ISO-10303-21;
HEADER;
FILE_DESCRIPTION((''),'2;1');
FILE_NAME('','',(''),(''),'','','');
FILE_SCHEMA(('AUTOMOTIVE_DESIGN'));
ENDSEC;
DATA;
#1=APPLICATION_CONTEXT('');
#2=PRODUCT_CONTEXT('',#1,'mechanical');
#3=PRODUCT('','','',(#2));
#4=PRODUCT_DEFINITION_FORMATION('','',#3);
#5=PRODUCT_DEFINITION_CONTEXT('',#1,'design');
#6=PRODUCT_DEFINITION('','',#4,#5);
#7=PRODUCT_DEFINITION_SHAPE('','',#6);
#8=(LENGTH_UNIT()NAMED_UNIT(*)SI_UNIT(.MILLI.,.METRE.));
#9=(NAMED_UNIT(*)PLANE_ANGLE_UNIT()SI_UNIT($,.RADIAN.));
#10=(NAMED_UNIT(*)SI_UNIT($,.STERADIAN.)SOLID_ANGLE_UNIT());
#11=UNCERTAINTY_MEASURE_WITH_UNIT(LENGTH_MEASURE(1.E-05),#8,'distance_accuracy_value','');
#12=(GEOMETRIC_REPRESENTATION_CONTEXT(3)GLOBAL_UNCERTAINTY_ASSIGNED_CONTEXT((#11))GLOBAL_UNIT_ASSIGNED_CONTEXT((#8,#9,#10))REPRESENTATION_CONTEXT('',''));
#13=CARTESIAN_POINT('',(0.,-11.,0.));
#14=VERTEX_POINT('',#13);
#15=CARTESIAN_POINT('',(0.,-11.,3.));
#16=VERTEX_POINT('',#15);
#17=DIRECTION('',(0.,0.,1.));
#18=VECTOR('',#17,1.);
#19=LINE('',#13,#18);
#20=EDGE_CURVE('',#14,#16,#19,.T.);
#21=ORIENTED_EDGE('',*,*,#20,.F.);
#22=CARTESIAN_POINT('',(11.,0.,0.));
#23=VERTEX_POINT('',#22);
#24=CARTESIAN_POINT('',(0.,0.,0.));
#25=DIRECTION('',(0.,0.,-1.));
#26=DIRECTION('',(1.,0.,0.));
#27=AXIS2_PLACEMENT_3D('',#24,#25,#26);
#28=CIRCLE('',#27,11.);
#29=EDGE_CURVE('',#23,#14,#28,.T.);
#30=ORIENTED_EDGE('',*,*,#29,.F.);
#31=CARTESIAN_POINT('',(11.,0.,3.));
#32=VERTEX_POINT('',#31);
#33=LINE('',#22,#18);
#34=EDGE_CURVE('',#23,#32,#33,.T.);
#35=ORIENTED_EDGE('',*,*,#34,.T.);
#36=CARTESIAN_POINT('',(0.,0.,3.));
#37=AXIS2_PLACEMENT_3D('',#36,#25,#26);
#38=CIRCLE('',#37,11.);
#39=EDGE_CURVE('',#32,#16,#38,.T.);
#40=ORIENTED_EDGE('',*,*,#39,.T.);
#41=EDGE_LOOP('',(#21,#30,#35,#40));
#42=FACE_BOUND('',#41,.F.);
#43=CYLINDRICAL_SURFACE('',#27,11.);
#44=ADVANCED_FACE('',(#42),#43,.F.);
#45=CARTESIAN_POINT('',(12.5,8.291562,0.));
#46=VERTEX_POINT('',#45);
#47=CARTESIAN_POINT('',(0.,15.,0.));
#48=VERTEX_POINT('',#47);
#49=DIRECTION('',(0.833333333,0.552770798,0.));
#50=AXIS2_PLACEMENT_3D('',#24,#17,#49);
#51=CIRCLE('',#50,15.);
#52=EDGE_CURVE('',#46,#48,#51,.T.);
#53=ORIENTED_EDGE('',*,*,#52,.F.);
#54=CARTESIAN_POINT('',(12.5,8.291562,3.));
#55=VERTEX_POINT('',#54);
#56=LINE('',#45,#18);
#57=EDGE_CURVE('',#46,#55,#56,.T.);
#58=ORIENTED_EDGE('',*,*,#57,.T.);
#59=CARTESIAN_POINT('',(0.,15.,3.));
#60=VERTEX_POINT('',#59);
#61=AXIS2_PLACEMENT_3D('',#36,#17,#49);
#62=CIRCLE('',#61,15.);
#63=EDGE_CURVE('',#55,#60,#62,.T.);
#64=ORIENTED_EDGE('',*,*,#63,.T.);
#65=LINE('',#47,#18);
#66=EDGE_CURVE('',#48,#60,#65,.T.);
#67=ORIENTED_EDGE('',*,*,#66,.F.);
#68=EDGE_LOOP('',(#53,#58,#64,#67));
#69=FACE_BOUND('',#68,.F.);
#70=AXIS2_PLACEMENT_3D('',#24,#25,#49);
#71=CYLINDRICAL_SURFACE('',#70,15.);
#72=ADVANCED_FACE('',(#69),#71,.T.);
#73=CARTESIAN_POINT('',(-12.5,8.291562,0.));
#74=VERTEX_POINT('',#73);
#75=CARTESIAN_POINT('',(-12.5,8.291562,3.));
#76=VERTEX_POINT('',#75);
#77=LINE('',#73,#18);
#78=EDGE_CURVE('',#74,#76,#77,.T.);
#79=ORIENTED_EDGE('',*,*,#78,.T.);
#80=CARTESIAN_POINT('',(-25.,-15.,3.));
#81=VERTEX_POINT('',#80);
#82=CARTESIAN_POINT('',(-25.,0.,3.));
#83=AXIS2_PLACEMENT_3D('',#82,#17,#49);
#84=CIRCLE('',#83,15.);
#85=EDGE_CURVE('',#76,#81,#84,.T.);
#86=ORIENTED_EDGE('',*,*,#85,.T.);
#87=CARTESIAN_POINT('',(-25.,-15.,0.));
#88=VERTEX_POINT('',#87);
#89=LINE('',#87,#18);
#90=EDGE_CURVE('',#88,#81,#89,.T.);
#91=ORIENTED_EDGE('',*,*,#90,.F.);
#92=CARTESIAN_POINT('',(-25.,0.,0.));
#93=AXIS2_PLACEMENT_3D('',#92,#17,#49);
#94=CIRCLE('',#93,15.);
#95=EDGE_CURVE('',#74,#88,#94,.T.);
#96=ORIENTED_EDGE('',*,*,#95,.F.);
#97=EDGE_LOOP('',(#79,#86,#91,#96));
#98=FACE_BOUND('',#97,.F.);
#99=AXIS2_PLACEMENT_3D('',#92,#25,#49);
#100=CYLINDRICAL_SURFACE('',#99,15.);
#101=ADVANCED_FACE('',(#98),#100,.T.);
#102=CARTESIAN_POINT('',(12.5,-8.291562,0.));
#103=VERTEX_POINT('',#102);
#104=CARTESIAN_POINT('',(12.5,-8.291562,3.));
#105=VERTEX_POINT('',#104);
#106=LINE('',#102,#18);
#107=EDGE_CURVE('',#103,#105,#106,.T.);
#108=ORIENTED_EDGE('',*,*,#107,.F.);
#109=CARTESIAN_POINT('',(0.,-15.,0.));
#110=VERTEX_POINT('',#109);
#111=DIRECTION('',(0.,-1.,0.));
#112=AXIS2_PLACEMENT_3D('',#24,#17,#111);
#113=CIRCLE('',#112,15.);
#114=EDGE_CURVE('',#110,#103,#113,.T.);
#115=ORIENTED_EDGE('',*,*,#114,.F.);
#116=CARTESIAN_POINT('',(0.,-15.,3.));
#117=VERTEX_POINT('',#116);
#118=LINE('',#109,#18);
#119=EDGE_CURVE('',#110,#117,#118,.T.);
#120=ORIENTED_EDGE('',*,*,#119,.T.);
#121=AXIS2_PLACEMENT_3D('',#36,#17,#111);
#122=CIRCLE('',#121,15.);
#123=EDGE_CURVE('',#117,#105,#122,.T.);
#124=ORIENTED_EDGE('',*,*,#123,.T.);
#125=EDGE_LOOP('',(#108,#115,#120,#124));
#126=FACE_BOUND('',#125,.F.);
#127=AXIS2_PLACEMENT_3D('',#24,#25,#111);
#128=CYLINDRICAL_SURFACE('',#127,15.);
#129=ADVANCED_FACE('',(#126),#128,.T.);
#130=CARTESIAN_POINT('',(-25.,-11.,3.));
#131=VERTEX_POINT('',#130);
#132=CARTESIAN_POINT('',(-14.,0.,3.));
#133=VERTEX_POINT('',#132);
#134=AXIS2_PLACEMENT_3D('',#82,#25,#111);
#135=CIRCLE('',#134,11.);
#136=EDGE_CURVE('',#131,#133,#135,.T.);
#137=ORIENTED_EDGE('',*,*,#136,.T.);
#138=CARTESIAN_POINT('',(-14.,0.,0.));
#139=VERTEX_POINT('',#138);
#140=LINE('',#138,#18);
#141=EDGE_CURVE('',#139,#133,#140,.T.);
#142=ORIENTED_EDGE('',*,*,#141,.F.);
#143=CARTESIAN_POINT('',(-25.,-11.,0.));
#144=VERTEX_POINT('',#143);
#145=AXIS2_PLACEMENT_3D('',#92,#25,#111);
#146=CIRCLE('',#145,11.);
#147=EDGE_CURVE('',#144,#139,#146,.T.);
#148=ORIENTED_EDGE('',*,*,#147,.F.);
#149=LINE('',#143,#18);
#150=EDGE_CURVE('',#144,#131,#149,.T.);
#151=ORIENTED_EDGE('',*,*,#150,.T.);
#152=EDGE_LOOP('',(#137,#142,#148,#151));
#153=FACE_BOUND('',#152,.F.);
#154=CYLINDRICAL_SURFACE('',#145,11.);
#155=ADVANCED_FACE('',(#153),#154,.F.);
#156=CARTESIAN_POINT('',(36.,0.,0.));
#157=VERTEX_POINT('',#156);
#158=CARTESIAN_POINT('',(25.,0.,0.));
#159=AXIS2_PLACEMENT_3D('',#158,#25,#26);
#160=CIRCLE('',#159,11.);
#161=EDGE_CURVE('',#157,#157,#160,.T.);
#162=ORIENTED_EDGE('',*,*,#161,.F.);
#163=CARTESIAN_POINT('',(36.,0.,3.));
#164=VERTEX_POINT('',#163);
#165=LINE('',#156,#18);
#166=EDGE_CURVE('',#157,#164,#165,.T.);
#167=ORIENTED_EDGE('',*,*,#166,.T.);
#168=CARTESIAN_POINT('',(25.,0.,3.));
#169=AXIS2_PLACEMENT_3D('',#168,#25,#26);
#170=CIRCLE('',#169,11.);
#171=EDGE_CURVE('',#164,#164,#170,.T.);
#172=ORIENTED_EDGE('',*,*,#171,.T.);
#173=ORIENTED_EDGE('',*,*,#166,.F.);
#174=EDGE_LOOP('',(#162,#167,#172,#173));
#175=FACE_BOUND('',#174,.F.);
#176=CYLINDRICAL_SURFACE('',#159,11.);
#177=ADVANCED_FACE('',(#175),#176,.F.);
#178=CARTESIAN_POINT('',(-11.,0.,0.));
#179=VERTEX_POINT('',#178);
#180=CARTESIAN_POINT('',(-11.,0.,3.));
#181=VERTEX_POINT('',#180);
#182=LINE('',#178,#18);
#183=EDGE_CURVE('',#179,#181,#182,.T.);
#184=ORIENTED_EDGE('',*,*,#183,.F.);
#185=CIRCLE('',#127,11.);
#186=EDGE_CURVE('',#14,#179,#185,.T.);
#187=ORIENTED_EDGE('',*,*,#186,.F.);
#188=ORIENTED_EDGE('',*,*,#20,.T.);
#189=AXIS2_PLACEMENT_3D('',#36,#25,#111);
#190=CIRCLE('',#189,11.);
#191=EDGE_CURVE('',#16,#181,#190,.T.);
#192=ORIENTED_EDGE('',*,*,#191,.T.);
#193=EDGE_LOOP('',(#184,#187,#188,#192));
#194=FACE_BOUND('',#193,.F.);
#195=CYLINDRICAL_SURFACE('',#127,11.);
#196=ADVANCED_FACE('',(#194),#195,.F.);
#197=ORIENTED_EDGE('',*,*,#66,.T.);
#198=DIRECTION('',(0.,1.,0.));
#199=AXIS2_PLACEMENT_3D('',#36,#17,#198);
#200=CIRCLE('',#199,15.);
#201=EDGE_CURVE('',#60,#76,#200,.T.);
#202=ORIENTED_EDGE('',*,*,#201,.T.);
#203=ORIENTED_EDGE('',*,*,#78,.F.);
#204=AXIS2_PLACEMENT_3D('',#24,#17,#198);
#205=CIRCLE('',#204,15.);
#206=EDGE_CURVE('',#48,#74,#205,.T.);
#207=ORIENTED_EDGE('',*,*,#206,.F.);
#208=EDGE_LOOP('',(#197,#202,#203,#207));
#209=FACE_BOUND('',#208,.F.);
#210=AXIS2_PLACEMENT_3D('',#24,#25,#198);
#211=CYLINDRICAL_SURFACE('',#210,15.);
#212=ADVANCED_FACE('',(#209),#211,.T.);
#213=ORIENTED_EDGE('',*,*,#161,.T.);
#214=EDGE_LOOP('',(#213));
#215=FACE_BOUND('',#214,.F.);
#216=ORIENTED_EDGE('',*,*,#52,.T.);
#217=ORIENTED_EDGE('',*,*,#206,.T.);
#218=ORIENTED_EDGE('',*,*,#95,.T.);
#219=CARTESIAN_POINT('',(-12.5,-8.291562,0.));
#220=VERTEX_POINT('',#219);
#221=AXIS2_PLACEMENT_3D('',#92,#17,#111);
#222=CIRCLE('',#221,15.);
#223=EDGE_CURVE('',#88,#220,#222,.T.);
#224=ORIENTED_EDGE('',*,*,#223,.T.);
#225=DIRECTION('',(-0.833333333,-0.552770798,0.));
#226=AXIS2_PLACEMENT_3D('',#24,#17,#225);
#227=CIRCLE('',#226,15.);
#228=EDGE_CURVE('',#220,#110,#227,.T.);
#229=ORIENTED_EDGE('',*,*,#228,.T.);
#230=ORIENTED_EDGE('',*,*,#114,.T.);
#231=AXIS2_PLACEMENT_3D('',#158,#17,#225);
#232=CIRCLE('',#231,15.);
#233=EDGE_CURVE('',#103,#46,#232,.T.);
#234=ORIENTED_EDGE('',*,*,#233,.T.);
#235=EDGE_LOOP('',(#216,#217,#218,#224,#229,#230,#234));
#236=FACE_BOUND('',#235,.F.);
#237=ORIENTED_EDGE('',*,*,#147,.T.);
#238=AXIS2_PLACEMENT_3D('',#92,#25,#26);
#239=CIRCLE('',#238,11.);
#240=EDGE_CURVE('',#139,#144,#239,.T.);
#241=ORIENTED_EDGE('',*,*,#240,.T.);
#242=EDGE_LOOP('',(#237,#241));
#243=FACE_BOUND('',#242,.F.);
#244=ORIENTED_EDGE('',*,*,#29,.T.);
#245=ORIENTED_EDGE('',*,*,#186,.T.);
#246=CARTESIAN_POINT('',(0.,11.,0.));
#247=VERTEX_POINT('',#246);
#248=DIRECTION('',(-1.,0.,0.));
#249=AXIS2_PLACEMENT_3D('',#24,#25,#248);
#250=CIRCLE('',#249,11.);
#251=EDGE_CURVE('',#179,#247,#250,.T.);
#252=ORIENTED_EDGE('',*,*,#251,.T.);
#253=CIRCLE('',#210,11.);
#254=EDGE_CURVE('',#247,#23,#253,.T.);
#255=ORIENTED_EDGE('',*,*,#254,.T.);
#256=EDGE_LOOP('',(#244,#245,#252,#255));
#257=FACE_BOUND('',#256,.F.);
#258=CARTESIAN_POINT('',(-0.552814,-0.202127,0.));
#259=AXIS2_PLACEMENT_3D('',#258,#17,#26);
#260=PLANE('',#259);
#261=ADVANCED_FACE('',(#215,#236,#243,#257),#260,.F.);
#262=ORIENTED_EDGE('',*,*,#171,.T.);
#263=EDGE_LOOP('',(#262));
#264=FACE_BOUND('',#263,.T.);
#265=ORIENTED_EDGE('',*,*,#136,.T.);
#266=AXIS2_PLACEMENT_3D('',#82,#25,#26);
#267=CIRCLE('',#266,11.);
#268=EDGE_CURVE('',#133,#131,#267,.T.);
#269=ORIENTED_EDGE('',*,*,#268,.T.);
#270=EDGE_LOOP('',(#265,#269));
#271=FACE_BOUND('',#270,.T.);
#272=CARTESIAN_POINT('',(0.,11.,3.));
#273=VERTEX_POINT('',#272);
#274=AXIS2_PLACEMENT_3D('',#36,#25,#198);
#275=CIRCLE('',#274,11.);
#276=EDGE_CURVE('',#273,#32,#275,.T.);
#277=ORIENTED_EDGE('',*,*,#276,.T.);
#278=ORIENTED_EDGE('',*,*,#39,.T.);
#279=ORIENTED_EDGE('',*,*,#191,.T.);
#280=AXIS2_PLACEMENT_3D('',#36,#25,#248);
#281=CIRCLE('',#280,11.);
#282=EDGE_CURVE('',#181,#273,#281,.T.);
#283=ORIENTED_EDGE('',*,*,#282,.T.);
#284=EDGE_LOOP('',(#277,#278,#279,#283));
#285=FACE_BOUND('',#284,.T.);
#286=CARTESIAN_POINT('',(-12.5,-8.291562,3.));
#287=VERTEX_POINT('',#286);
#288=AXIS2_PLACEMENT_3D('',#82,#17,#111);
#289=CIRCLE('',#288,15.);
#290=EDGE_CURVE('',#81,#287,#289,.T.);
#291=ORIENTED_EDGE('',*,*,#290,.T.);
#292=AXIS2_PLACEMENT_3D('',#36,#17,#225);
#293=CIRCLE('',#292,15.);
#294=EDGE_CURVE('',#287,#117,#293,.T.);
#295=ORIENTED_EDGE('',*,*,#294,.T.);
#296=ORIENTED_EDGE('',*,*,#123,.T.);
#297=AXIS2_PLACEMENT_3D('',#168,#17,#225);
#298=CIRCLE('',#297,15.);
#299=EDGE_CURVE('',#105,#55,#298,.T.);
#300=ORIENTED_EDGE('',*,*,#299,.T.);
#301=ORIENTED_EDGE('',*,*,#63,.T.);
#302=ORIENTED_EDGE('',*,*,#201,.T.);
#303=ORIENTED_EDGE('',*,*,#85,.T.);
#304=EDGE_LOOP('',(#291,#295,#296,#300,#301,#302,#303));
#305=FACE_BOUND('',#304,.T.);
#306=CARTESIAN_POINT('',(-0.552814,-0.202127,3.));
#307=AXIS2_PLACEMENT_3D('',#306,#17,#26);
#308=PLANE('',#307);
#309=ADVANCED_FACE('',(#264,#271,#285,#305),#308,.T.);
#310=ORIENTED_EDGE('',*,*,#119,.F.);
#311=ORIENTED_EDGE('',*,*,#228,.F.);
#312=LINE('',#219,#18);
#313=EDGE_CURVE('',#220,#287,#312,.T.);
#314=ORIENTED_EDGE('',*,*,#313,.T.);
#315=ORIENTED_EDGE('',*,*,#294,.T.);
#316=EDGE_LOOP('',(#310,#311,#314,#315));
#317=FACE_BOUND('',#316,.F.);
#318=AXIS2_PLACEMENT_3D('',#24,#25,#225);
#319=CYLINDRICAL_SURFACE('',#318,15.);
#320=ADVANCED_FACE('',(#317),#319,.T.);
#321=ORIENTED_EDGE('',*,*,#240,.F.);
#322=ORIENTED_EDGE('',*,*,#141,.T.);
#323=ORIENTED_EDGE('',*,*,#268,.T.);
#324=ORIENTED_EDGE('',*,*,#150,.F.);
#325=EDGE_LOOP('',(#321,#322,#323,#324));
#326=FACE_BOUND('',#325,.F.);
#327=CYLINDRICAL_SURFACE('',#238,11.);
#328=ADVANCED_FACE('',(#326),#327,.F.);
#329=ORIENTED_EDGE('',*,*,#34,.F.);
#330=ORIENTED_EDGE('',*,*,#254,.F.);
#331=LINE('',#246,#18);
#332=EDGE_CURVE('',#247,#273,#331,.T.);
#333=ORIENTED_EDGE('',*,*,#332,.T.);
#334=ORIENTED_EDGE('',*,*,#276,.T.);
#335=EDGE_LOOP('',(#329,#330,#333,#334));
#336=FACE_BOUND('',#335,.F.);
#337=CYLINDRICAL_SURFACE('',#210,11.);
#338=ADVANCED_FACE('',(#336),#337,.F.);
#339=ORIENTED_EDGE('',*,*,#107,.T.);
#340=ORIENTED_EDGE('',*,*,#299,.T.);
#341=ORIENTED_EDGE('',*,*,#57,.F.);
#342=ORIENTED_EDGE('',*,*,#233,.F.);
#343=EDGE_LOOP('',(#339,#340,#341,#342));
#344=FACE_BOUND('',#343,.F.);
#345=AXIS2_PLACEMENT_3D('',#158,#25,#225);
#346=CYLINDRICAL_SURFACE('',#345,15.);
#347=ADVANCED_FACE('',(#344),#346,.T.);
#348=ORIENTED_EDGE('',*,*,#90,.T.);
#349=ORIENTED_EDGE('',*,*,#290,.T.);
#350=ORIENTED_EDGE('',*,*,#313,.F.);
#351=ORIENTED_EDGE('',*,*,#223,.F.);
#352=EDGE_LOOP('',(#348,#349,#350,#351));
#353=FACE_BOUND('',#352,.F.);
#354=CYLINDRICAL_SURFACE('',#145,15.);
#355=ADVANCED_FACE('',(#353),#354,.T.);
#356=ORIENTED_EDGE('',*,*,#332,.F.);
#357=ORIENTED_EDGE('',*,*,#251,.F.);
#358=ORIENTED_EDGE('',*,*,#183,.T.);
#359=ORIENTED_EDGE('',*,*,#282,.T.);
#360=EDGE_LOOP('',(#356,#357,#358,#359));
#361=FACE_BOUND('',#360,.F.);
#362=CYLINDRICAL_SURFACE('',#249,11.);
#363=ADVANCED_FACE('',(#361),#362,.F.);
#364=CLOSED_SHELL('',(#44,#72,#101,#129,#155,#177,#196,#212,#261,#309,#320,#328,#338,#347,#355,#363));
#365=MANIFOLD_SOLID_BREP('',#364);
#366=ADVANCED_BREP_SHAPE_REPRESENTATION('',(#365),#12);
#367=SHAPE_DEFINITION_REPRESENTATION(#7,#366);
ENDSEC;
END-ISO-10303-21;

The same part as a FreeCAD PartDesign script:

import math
import FreeCAD as App
import Part
import Sketcher
from FreeCAD import Vector
Q = App.Units.Quantity

doc = App.newDocument("Part")
body = doc.addObject("PartDesign::Body", "Body")

sketch1 = body.newObject("Sketcher::SketchObject", "Sketch")
sketch1.AttachmentSupport = (doc.getObject("XY_Plane"), [""])
sketch1.MapMode = "FlatFace"
sketch1.addGeometry(Part.ArcOfCircle(Part.Circle(Vector(-25, 0, 0), Vector(0, 0, 1), 15), math.radians(-90), math.radians(-33.55731)), False)
sketch1.addGeometry(Part.ArcOfCircle(Part.Circle(Vector(0, 0, 0), Vector(0, 0, 1), 15), math.radians(-146.44269), math.radians(-90)), False)
sketch1.addGeometry(Part.ArcOfCircle(Part.Circle(Vector(0, 0, 0), Vector(0, 0, 1), 15), math.radians(-90), math.radians(-33.55731)), False)
sketch1.addGeometry(Part.ArcOfCircle(Part.Circle(Vector(25, 0, 0), Vector(0, 0, 1), 15), math.radians(-146.44269), math.radians(146.44269)), False)
sketch1.addGeometry(Part.ArcOfCircle(Part.Circle(Vector(0, 0, 0), Vector(0, 0, 1), 15), math.radians(33.55731), math.radians(90)), False)
sketch1.addGeometry(Part.ArcOfCircle(Part.Circle(Vector(0, 0, 0), Vector(0, 0, 1), 15), math.radians(90), math.radians(146.44269)), False)
sketch1.addGeometry(Part.ArcOfCircle(Part.Circle(Vector(-25, 0, 0), Vector(0, 0, 1), 15), math.radians(33.55731), math.radians(270)), False)
sketch1.addGeometry(Part.ArcOfCircle(Part.Circle(Vector(-25, 0, 0), Vector(0, 0, 1), 11), math.radians(0), math.radians(270)), False)
sketch1.addGeometry(Part.ArcOfCircle(Part.Circle(Vector(-25, 0, 0), Vector(0, 0, 1), 11), math.radians(-90), math.radians(0)), False)
sketch1.addGeometry(Part.ArcOfCircle(Part.Circle(Vector(0, 0, 0), Vector(0, 0, 1), 11), math.radians(180), math.radians(270)), False)
sketch1.addGeometry(Part.ArcOfCircle(Part.Circle(Vector(0, 0, 0), Vector(0, 0, 1), 11), math.radians(90), math.radians(180)), False)
sketch1.addGeometry(Part.ArcOfCircle(Part.Circle(Vector(0, 0, 0), Vector(0, 0, 1), 11), math.radians(0), math.radians(90)), False)
sketch1.addGeometry(Part.ArcOfCircle(Part.Circle(Vector(0, 0, 0), Vector(0, 0, 1), 11), math.radians(-90), math.radians(0)), False)
sketch1.addGeometry(Part.Circle(Vector(25, 0, 0), Vector(0, 0, 1), 11), False)
sketch1.addConstraint(Sketcher.Constraint("Coincident", 0, 2, 1, 1))
sketch1.addConstraint(Sketcher.Constraint("Tangent", 1, 2, 2, 1))
sketch1.addConstraint(Sketcher.Constraint("Coincident", 2, 2, 3, 1))
sketch1.addConstraint(Sketcher.Constraint("Coincident", 3, 2, 4, 1))
sketch1.addConstraint(Sketcher.Constraint("Tangent", 4, 2, 5, 1))
sketch1.addConstraint(Sketcher.Constraint("Coincident", 5, 2, 6, 1))
sketch1.addConstraint(Sketcher.Constraint("Tangent", 6, 2, 0, 1))
sketch1.addConstraint(Sketcher.Constraint("Tangent", 7, 1, 8, 2))
sketch1.addConstraint(Sketcher.Constraint("Coincident", 8, 1, 7, 2))
sketch1.addConstraint(Sketcher.Constraint("Tangent", 9, 1, 10, 2))
sketch1.addConstraint(Sketcher.Constraint("Tangent", 10, 1, 11, 2))
sketch1.addConstraint(Sketcher.Constraint("Tangent", 11, 1, 12, 2))
sketch1.addConstraint(Sketcher.Constraint("Tangent", 12, 1, 9, 2))
sketch1.addConstraint(Sketcher.Constraint("Coincident", 1, 3, -1, 1))
sketch1.addConstraint(Sketcher.Constraint("Coincident", 4, 3, -1, 1))
sketch1.addConstraint(Sketcher.Constraint("Coincident", 9, 3, -1, 1))
sketch1.addConstraint(Sketcher.Constraint("Coincident", 7, 3, 0, 3))
sketch1.addConstraint(Sketcher.Constraint("Coincident", 13, 3, 3, 3))
sketch1.addConstraint(Sketcher.Constraint("Equal", 0, 1))
sketch1.addConstraint(Sketcher.Constraint("Equal", 1, 2))
sketch1.addConstraint(Sketcher.Constraint("Equal", 2, 3))
sketch1.addConstraint(Sketcher.Constraint("Equal", 3, 4))
sketch1.addConstraint(Sketcher.Constraint("Equal", 4, 5))
sketch1.addConstraint(Sketcher.Constraint("Equal", 5, 6))
sketch1.addConstraint(Sketcher.Constraint("Equal", 8, 9))
sketch1.addConstraint(Sketcher.Constraint("Equal", 9, 10))
sketch1.addConstraint(Sketcher.Constraint("Equal", 12, 13))
sketch1.addConstraint(Sketcher.Constraint("Symmetric", 0, 3, 3, 3, -1, 1))
sketch1.addConstraint(Sketcher.Constraint("PointOnObject", 0, 3, -1))
sketch1.addConstraint(Sketcher.Constraint("PointOnObject", 1, 2, -2))
sketch1.addConstraint(Sketcher.Constraint("PointOnObject", 4, 2, -2))
sketch1.addConstraint(Sketcher.Constraint("PointOnObject", 7, 1, -1))
sketch1.addConstraint(Sketcher.Constraint("PointOnObject", 9, 1, -1))
sketch1.addConstraint(Sketcher.Constraint("PointOnObject", 10, 1, -2))
sketch1.addConstraint(Sketcher.Constraint("PointOnObject", 11, 1, -1))
sketch1.addConstraint(Sketcher.Constraint("PointOnObject", 12, 1, -2))
sketch1.addConstraint(Sketcher.Constraint("Vertical", 8, 3, 6, 2))
sketch1.addConstraint(Sketcher.Constraint("Vertical", 6, 2, 8, 1))
sketch1.addConstraint(Sketcher.Constraint("Diameter", 13, Q("22 mm")))
sketch1.addConstraint(Sketcher.Constraint("Radius", 0, Q("15 mm")))
sketch1.addConstraint(Sketcher.Constraint("DistanceX", 0, 3, -1, 1, Q("25 mm")))
pad1 = body.newObject("PartDesign::Pad", "Pad")
pad1.Profile = sketch1
pad1.Length = 3

doc.recompute()
